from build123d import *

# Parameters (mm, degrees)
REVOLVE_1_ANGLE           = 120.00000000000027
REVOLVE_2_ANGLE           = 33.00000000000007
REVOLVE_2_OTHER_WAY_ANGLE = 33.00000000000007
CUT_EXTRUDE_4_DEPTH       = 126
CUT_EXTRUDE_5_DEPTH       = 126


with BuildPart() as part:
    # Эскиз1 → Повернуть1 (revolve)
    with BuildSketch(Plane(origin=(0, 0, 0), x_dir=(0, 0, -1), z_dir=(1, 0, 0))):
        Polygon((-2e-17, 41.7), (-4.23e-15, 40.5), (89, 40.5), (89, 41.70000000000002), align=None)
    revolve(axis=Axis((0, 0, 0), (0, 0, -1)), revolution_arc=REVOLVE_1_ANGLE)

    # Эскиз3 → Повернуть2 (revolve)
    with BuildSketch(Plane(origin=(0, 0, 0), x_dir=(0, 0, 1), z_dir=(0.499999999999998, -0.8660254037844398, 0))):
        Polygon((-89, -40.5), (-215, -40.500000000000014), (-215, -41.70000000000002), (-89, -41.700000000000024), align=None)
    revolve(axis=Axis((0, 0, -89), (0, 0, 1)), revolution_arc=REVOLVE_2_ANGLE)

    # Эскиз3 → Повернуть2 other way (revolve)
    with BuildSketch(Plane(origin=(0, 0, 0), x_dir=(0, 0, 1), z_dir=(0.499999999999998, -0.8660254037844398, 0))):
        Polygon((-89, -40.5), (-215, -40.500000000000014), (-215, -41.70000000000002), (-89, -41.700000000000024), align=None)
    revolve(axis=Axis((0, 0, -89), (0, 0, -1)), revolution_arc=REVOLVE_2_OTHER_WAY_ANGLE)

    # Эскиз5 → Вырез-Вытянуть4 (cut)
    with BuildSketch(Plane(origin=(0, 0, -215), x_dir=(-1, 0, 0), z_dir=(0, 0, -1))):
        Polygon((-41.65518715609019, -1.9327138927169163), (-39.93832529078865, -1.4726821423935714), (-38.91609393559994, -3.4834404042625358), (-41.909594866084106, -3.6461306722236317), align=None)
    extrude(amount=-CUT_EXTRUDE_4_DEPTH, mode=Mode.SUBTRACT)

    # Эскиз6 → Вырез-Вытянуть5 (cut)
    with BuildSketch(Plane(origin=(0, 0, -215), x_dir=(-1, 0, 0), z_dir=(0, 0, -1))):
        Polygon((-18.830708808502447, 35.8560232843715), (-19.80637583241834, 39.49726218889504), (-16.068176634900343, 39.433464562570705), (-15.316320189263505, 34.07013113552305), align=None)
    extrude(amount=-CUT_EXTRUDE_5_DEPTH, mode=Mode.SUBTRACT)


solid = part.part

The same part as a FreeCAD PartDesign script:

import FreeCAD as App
import Part
import Sketcher
from FreeCAD import Vector
Q = App.Units.Quantity

doc = App.newDocument("Part")
params = doc.addObject("Spreadsheet::Sheet", "Params")
for row, (alias, value) in enumerate([
    ("sketch1_height", "89 mm"),
    ("sketch1_width", "1.2 mm"),
    ("revolution_angle", "120 deg"),
    ("sketch2_width", "126 mm"),
    ("sketch2_height", "1.2 mm"),
    ("revolution2_angle", "33 deg"),
    ("sketch3_width", "126 mm"),
    ("sketch3_height", "1.2 mm"),
    ("revolution3_angle", "33 deg"),
    ("pocket1_length", "126 mm"),
    ("pocket2_length", "126 mm"),
], start=1):
    params.set(f"A{row}", alias)
    params.set(f"B{row}", "=" + value)
    params.setAlias(f"B{row}", alias)

body = doc.addObject("PartDesign::Body", "Body")

sketch1 = doc.addObject("Sketcher::SketchObject", "Sketch")
body.addObject(sketch1)
sketch1.AttachmentSupport = (doc.YZ_Plane, [""])
sketch1.MapMode = "FlatFace"
sketch1.addGeometry([
    Part.LineSegment(Vector(41.7, 0, 0), Vector(40.5, 0, 0)),
    Part.LineSegment(Vector(40.5, 0, 0), Vector(40.5, -89, 0)),
    Part.LineSegment(Vector(40.5, -89, 0), Vector(41.7, -89, 0)),
    Part.LineSegment(Vector(41.7, -89, 0), Vector(41.7, 0, 0)),
], False)
sketch1.addConstraint([
    Sketcher.Constraint("Coincident", 0, 2, 1, 1),
    Sketcher.Constraint("Coincident", 1, 2, 2, 1),
    Sketcher.Constraint("Coincident", 2, 2, 3, 1),
    Sketcher.Constraint("Coincident", 3, 2, 0, 1),
    Sketcher.Constraint("Horizontal", 0),
    Sketcher.Constraint("Vertical", 1),
    Sketcher.Constraint("Horizontal", 2),
    Sketcher.Constraint("Vertical", 3),
    Sketcher.Constraint("PointOnObject", 0, 2, -1),
    Sketcher.Constraint("DistanceY", 1, 2, 1, 1, 89.0),
    Sketcher.Constraint("DistanceX", 0, 2, 0, 1, 1.2),
    Sketcher.Constraint("DistanceX", -1, 1, 0, 2, 40.5),
])
sketch1.setExpression("Constraints[9]", "Params.sketch1_height")
sketch1.setExpression("Constraints[10]", "Params.sketch1_width")
revolution = doc.addObject("PartDesign::Revolution", "Revolution")
body.addObject(revolution)
revolution.Profile = sketch1
revolution.ReferenceAxis = (sketch1, ["V_Axis"])
revolution.setExpression("Angle", "Params.revolution_angle")
revolution.Reversed = True

sketch2 = doc.addObject("Sketcher::SketchObject", "Sketch001")
body.addObject(sketch2)
sketch2.Placement = App.Placement(Vector(0, 0, 0), App.Rotation(Vector(0, 0, 1), Vector(-0.866025404, -0.5, 0), Vector(0.5, -0.866025404, 0), "ZXY"))
sketch2.addGeometry([
    Part.LineSegment(Vector(-89, -40.5, 0), Vector(-215, -40.5, 0)),
    Part.LineSegment(Vector(-215, -40.5, 0), Vector(-215, -41.7, 0)),
    Part.LineSegment(Vector(-215, -41.7, 0), Vector(-89, -41.7, 0)),
    Part.LineSegment(Vector(-89, -41.7, 0), Vector(-89, -40.5, 0)),
], False)
sketch2.addConstraint([
    Sketcher.Constraint("Coincident", 0, 2, 1, 1),
    Sketcher.Constraint("Coincident", 1, 2, 2, 1),
    Sketcher.Constraint("Coincident", 2, 2, 3, 1),
    Sketcher.Constraint("Coincident", 3, 2, 0, 1),
    Sketcher.Constraint("Horizontal", 0),
    Sketcher.Constraint("Vertical", 1),
    Sketcher.Constraint("Horizontal", 2),
    Sketcher.Constraint("Vertical", 3),
    Sketcher.Constraint("DistanceX", 0, 2, 0, 1, 126.0),
    Sketcher.Constraint("DistanceY", 1, 2, 1, 1, 1.2),
    Sketcher.Constraint("DistanceX", 0, 2, -1, 1, 215.0),
    Sketcher.Constraint("DistanceY", 0, 2, -1, 1, 40.5),
])
sketch2.setExpression("Constraints[8]", "Params.sketch2_width")
sketch2.setExpression("Constraints[9]", "Params.sketch2_height")
revolution2 = doc.addObject("PartDesign::Revolution", "Revolution001")
body.addObject(revolution2)
revolution2.Profile = sketch2
revolution2.ReferenceAxis = (sketch2, ["H_Axis"])
revolution2.setExpression("Angle", "Params.revolution2_angle")

sketch3 = doc.addObject("Sketcher::SketchObject", "Sketch002")
body.addObject(sketch3)
sketch3.Placement = App.Placement(Vector(0, 0, 0), App.Rotation(Vector(0, 0, 1), Vector(-0.866025404, -0.5, 0), Vector(0.5, -0.866025404, 0), "ZXY"))
sketch3.addGeometry([
    Part.LineSegment(Vector(-89, -40.5, 0), Vector(-215, -40.5, 0)),
    Part.LineSegment(Vector(-215, -40.5, 0), Vector(-215, -41.7, 0)),
    Part.LineSegment(Vector(-215, -41.7, 0), Vector(-89, -41.7, 0)),
    Part.LineSegment(Vector(-89, -41.7, 0), Vector(-89, -40.5, 0)),
], False)
sketch3.addConstraint([
    Sketcher.Constraint("Coincident", 0, 2, 1, 1),
    Sketcher.Constraint("Coincident", 1, 2, 2, 1),
    Sketcher.Constraint("Coincident", 2, 2, 3, 1),
    Sketcher.Constraint("Coincident", 3, 2, 0, 1),
    Sketcher.Constraint("Horizontal", 0),
    Sketcher.Constraint("Vertical", 1),
    Sketcher.Constraint("Horizontal", 2),
    Sketcher.Constraint("Vertical", 3),
    Sketcher.Constraint("DistanceX", 0, 2, 0, 1, 126.0),
    Sketcher.Constraint("DistanceY", 1, 2, 1, 1, 1.2),
    Sketcher.Constraint("DistanceX", 0, 2, -1, 1, 215.0),
    Sketcher.Constraint("DistanceY", 0, 2, -1, 1, 40.5),
])
sketch3.setExpression("Constraints[8]", "Params.sketch3_width")
sketch3.setExpression("Constraints[9]", "Params.sketch3_height")
revolution3 = doc.addObject("PartDesign::Revolution", "Revolution002")
body.addObject(revolution3)
revolution3.Profile = sketch3
revolution3.ReferenceAxis = (sketch3, ["H_Axis"])
revolution3.setExpression("Angle", "Params.revolution3_angle")
revolution3.Reversed = True

sketch4 = doc.addObject("Sketcher::SketchObject", "Sketch003")
body.addObject(sketch4)
sketch4.AttachmentSupport = (doc.XY_Plane, [""])
sketch4.MapMode = "FlatFace"
sketch4.AttachmentOffset = App.Placement(Vector(0, 0, -215), App.Rotation())
sketch4.addGeometry([
    Part.LineSegment(Vector(39.9, -1.5, 0), Vector(41.7, -1.9, 0)),
    Part.LineSegment(Vector(41.7, -1.9, 0), Vector(41.9, -3.6, 0)),
    Part.LineSegment(Vector(41.9, -3.6, 0), Vector(38.9, -3.5, 0)),
    Part.LineSegment(Vector(38.9, -3.5, 0), Vector(39.9, -1.5, 0)),
], False)
sketch4.addConstraint([
    Sketcher.Constraint("Coincident", 0, 2, 1, 1),
    Sketcher.Constraint("Coincident", 1, 2, 2, 1),
    Sketcher.Constraint("Coincident", 2, 2, 3, 1),
    Sketcher.Constraint("Coincident", 3, 2, 0, 1),
    Sketcher.Constraint("Angle", 0, Q("-15 deg")),
    Sketcher.Constraint("Distance", 1, 1.732201),
    Sketcher.Constraint("DistanceX", 2, 2, 1, 2, 2.993501),
    Sketcher.Constraint("Distance", 2, 2.997919),
    Sketcher.Constraint("DistanceY", 1, 2, -1, 1, 3.646131),
    Sketcher.Constraint("DistanceX", 3, 2, 0, 2, 1.716862),
    Sketcher.Constraint("DistanceX", 2, 2, 3, 2, 1.022231),
    Sketcher.Constraint("DistanceX", -1, 1, 0, 2, 41.655187),
])
pocket1 = doc.addObject("PartDesign::Pocket", "Pocket")
body.addObject(pocket1)
pocket1.Profile = sketch4
pocket1.setExpression("Length", "Params.pocket1_length")
pocket1.Reversed = True

sketch5 = doc.addObject("Sketcher::SketchObject", "Sketch004")
body.addObject(sketch5)
sketch5.AttachmentSupport = (doc.XY_Plane, [""])
sketch5.MapMode = "FlatFace"
sketch5.AttachmentOffset = App.Placement(Vector(0, 0, -215), App.Rotation())
sketch5.addGeometry([
    Part.LineSegment(Vector(19.8, 39.5, 0), Vector(18.8, 35.9, 0)),
    Part.LineSegment(Vector(18.8, 35.9, 0), Vector(15.3, 34.1, 0)),
    Part.LineSegment(Vector(15.3, 34.1, 0), Vector(16.1, 39.4, 0)),
    Part.LineSegment(Vector(16.1, 39.4, 0), Vector(19.8, 39.5, 0)),
], False)
sketch5.addConstraint([
    Sketcher.Constraint("Coincident", 0, 2, 1, 1),
    Sketcher.Constraint("Coincident", 1, 2, 2, 1),
    Sketcher.Constraint("Coincident", 2, 2, 3, 1),
    Sketcher.Constraint("Coincident", 3, 2, 0, 1),
    Sketcher.Constraint("Angle", 0, Q("-105 deg")),
    Sketcher.Constraint("Angle", 2, Q("82.02002 deg")),
    Sketcher.Constraint("DistanceX", 2, 2, 3, 2, 3.738199),
    Sketcher.Constraint("DistanceX", -1, 1, 0, 2, 18.830709),
    Sketcher.Constraint("DistanceX", -1, 1, 1, 2, 15.31632),
    Sketcher.Constraint("DistanceY", -1, 1, 1, 2, 34.070131),
    Sketcher.Constraint("DistanceY", 0, 2, 2, 2, 3.577441),
    Sketcher.Constraint("DistanceY", 0, 2, 3, 2, 3.641239),
])
pocket2 = doc.addObject("PartDesign::Pocket", "Pocket001")
body.addObject(pocket2)
pocket2.Profile = sketch5
pocket2.setExpression("Length", "Params.pocket2_length")
pocket2.Reversed = True

doc.recompute()
